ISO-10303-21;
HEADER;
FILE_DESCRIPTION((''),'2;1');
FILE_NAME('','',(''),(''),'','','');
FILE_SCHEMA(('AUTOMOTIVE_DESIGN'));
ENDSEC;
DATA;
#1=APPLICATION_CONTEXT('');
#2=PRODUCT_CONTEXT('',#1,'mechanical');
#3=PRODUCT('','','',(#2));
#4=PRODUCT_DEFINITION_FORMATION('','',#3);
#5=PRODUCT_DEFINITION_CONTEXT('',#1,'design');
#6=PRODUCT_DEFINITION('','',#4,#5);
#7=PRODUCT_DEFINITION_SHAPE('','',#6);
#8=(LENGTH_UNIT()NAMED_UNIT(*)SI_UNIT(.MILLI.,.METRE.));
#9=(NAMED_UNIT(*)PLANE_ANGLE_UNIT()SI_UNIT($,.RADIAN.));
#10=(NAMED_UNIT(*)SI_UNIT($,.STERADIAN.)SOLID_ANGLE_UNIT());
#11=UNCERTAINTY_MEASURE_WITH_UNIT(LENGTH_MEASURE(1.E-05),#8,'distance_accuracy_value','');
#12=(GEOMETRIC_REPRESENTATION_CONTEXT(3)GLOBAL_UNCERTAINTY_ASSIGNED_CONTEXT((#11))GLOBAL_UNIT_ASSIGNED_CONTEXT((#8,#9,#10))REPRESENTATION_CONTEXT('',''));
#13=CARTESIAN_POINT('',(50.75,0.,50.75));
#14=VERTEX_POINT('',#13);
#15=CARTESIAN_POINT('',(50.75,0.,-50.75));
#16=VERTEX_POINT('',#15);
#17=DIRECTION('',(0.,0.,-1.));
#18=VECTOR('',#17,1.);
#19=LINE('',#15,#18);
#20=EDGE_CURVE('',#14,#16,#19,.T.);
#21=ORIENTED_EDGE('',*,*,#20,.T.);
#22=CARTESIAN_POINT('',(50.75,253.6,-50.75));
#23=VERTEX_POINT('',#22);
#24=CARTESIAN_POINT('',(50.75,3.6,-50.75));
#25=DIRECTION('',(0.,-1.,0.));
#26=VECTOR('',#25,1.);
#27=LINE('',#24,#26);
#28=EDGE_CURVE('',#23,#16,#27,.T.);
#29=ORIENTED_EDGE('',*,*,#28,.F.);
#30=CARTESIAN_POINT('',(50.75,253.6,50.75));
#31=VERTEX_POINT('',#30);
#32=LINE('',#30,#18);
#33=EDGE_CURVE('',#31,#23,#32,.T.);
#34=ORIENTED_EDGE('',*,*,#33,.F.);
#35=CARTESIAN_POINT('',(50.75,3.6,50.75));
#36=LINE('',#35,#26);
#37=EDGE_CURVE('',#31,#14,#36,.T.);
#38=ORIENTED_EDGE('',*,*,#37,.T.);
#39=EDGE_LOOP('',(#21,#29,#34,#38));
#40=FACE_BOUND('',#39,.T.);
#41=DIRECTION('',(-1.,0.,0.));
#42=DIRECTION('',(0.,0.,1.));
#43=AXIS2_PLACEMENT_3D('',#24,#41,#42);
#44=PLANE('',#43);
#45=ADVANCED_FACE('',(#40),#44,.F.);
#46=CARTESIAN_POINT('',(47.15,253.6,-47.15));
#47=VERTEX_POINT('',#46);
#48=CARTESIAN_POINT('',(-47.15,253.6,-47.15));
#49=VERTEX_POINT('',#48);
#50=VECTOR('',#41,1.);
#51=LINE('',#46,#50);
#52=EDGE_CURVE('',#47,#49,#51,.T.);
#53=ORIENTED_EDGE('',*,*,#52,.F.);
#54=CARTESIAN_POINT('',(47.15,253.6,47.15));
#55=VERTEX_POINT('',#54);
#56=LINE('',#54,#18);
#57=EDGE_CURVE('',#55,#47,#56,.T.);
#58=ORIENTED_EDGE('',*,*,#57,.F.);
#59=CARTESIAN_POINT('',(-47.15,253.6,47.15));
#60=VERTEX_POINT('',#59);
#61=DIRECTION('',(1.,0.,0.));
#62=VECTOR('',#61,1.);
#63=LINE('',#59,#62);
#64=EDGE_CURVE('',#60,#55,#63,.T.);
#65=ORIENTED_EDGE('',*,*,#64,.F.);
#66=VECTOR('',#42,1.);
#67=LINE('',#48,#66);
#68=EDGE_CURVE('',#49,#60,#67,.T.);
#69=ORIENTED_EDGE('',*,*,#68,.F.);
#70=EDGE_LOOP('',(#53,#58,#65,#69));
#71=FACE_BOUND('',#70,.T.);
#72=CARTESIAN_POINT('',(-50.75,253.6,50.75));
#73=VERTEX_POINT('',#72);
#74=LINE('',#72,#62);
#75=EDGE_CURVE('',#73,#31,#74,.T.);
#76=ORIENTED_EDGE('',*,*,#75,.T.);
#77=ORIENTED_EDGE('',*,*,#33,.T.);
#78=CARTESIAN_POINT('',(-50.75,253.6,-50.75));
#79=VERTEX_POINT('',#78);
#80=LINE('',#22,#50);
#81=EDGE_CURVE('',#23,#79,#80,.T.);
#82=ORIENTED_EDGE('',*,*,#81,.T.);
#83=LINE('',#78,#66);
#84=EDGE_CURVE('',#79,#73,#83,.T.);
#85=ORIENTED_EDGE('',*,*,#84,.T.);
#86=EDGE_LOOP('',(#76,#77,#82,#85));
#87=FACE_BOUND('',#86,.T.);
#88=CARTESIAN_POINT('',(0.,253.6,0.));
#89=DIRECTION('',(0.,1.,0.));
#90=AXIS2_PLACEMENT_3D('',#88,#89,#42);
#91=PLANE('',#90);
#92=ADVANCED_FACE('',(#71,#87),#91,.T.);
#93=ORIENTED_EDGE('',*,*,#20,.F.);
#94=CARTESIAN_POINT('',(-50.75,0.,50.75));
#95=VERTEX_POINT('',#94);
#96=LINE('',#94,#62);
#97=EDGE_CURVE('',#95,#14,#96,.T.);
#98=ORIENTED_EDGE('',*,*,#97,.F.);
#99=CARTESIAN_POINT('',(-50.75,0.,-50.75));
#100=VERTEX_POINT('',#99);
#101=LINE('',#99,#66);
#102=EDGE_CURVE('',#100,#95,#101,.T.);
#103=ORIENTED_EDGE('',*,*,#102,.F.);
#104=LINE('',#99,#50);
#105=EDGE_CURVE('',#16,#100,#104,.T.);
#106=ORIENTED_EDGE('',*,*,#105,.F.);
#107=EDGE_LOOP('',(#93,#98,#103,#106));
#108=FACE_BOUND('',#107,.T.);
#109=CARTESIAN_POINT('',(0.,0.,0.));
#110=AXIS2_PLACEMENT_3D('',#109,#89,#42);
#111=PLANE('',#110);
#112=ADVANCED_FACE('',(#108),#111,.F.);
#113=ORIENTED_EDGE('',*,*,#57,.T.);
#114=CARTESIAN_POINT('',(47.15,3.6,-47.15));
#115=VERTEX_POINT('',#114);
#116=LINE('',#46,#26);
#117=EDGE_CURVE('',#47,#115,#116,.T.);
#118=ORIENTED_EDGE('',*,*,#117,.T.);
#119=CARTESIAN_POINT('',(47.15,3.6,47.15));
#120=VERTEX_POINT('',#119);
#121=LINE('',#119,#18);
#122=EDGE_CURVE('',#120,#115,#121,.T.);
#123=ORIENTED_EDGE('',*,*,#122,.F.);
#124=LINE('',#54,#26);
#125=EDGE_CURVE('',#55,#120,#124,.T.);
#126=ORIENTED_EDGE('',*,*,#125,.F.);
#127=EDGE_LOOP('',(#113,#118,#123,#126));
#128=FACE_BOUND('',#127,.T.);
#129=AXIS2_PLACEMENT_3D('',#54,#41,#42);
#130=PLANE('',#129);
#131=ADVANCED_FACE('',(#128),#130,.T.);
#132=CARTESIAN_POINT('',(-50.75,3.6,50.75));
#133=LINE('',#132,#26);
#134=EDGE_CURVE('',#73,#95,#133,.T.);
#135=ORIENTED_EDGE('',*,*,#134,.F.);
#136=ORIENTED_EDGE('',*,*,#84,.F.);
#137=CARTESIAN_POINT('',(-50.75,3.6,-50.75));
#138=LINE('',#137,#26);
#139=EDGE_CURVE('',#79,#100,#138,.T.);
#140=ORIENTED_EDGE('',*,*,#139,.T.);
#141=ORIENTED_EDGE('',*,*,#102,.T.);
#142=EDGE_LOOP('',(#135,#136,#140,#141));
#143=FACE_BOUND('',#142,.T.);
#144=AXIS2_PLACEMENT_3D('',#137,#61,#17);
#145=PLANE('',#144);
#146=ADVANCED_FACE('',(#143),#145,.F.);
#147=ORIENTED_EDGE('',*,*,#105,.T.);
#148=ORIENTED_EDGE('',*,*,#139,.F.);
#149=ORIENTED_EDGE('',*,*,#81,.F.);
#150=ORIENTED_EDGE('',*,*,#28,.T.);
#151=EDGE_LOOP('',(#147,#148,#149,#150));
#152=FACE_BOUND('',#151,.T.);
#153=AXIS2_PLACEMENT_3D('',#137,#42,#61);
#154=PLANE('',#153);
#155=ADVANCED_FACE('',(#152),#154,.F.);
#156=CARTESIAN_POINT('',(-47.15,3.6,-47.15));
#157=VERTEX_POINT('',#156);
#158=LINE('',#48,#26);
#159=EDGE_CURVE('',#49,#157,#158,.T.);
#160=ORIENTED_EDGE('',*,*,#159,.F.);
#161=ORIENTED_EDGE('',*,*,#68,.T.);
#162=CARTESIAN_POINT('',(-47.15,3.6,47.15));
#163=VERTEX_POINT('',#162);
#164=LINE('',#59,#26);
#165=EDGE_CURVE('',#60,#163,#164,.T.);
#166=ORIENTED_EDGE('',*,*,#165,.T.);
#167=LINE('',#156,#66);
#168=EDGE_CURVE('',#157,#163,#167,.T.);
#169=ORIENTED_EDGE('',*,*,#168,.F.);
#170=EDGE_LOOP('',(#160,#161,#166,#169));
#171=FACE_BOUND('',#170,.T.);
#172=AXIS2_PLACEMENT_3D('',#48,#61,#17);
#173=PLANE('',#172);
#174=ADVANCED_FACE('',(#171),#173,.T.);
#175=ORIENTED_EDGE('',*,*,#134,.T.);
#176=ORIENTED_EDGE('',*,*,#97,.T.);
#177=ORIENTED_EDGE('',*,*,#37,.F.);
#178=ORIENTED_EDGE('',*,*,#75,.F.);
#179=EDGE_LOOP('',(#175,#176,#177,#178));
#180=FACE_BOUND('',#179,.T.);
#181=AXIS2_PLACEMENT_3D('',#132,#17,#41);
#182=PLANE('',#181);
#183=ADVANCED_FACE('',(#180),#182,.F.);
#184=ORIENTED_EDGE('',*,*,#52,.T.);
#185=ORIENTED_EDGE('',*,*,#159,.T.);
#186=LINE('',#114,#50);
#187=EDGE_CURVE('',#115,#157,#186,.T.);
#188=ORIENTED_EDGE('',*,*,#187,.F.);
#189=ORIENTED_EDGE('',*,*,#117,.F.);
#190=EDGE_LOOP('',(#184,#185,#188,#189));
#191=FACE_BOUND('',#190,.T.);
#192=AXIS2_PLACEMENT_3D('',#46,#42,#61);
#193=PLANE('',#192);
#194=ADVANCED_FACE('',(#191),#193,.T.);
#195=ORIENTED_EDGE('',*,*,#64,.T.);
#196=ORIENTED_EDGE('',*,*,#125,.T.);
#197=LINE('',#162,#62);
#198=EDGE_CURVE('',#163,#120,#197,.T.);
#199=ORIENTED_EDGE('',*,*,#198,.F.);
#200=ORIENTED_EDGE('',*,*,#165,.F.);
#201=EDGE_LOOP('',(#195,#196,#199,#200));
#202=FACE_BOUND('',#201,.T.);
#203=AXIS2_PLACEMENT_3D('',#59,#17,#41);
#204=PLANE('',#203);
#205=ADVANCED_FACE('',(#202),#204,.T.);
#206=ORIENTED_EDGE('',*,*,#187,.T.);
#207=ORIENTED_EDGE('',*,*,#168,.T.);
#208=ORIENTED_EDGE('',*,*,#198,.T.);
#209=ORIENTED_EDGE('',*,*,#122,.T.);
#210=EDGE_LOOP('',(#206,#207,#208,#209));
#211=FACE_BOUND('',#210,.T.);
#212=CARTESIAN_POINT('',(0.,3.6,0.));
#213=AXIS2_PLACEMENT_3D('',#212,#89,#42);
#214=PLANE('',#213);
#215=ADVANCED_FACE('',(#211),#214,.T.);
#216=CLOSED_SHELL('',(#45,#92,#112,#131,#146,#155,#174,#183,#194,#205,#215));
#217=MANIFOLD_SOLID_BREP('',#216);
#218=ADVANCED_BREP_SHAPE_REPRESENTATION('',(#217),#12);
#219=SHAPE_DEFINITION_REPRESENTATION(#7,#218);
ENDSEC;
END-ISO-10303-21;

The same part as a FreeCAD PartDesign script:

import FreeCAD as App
import Part
import Sketcher
Q = App.Units.Quantity

doc = App.newDocument("Part")
body = doc.addObject("PartDesign::Body", "Body")

# Sketch on XZ plane
sketch1 = doc.addObject("Sketcher::SketchObject", "Sketch")
body.addObject(sketch1)
sketch1.AttachmentSupport = (doc.XZ_Plane, [""])
sketch1.MapMode = "FlatFace"
sketch1.addGeometry([
    Part.LineSegment(App.Vector(-51, -51, 0), App.Vector(-51, 51, 0)),
    Part.LineSegment(App.Vector(-51, 51, 0), App.Vector(51, 51, 0)),
    Part.LineSegment(App.Vector(51, 51, 0), App.Vector(51, -51, 0)),
    Part.LineSegment(App.Vector(51, -51, 0), App.Vector(-51, -51, 0)),
], False)
sketch1.addConstraint([
    Sketcher.Constraint("Coincident", 0, 2, 1, 1),
    Sketcher.Constraint("Coincident", 1, 2, 2, 1),
    Sketcher.Constraint("Coincident", 2, 2, 3, 1),
    Sketcher.Constraint("Coincident", 3, 2, 0, 1),
    Sketcher.Constraint("Vertical", 0),
    Sketcher.Constraint("Horizontal", 1),
    Sketcher.Constraint("Vertical", 2),
    Sketcher.Constraint("Horizontal", 3),
    Sketcher.Constraint("Symmetric", 0, 2, 2, 2, -1, 1),
    Sketcher.Constraint("Equal", 3, 0),
    Sketcher.Constraint("DistanceX", 1, 1, 1, 2, Q("101.5 mm")),
])
pad1 = doc.addObject("PartDesign::Pad", "Pad")
body.addObject(pad1)
pad1.Profile = sketch1
pad1.Length = 3.6
pad1.Reversed = True

# Sketch on XZ plane
sketch2 = doc.addObject("Sketcher::SketchObject", "Sketch001")
body.addObject(sketch2)
sketch2.AttachmentSupport = (doc.XZ_Plane, [""])
sketch2.MapMode = "FlatFace"
sketch2.AttachmentOffset = App.Placement(App.Vector(0, 0, -3.6), App.Rotation())
sketch2.addGeometry([
    Part.LineSegment(App.Vector(-51, -51, 0), App.Vector(-51, 51, 0)),  # 0
    Part.LineSegment(App.Vector(-51, 51, 0), App.Vector(51, 51, 0)),  # 1
    Part.LineSegment(App.Vector(51, 51, 0), App.Vector(51, -51, 0)),  # 2
    Part.LineSegment(App.Vector(51, -51, 0), App.Vector(-51, -51, 0)),  # 3
    Part.LineSegment(App.Vector(47, 47, 0), App.Vector(-47, 47, 0)),  # 4
    Part.LineSegment(App.Vector(-47, 47, 0), App.Vector(-47, -47, 0)),  # 5
    Part.LineSegment(App.Vector(-47, -47, 0), App.Vector(47, -47, 0)),  # 6
    Part.LineSegment(App.Vector(47, -47, 0), App.Vector(47, 47, 0)),  # 7
], False)
sketch2.addConstraint([
    Sketcher.Constraint("Coincident", 0, 2, 1, 1),
    Sketcher.Constraint("Coincident", 1, 2, 2, 1),
    Sketcher.Constraint("Coincident", 2, 2, 3, 1),
    Sketcher.Constraint("Coincident", 3, 2, 0, 1),
    Sketcher.Constraint("Coincident", 4, 2, 5, 1),
    Sketcher.Constraint("Coincident", 5, 2, 6, 1),
    Sketcher.Constraint("Coincident", 6, 2, 7, 1),
    Sketcher.Constraint("Coincident", 7, 2, 4, 1),
    Sketcher.Constraint("Vertical", 0),
    Sketcher.Constraint("Horizontal", 1),
    Sketcher.Constraint("Vertical", 2),
    Sketcher.Constraint("Horizontal", 3),
    Sketcher.Constraint("Horizontal", 4),
    Sketcher.Constraint("Vertical", 5),
    Sketcher.Constraint("Horizontal", 6),
    Sketcher.Constraint("Vertical", 7),
    Sketcher.Constraint("Symmetric", 0, 2, 2, 2, -1, 1),
    Sketcher.Constraint("Symmetric", 4, 2, 6, 2, -1, 1),
    Sketcher.Constraint("Equal", 3, 0),
    Sketcher.Constraint("Equal", 6, 5),
    Sketcher.Constraint("DistanceX", 1, 1, 1, 2, Q("101.5 mm")),
    Sketcher.Constraint("DistanceX", 4, 2, 4, 1, Q("94.3 mm")),
])
pad2 = doc.addObject("PartDesign::Pad", "Pad001")
body.addObject(pad2)
pad2.Profile = sketch2
pad2.Length = 250
pad2.Reversed = True

doc.recompute()
